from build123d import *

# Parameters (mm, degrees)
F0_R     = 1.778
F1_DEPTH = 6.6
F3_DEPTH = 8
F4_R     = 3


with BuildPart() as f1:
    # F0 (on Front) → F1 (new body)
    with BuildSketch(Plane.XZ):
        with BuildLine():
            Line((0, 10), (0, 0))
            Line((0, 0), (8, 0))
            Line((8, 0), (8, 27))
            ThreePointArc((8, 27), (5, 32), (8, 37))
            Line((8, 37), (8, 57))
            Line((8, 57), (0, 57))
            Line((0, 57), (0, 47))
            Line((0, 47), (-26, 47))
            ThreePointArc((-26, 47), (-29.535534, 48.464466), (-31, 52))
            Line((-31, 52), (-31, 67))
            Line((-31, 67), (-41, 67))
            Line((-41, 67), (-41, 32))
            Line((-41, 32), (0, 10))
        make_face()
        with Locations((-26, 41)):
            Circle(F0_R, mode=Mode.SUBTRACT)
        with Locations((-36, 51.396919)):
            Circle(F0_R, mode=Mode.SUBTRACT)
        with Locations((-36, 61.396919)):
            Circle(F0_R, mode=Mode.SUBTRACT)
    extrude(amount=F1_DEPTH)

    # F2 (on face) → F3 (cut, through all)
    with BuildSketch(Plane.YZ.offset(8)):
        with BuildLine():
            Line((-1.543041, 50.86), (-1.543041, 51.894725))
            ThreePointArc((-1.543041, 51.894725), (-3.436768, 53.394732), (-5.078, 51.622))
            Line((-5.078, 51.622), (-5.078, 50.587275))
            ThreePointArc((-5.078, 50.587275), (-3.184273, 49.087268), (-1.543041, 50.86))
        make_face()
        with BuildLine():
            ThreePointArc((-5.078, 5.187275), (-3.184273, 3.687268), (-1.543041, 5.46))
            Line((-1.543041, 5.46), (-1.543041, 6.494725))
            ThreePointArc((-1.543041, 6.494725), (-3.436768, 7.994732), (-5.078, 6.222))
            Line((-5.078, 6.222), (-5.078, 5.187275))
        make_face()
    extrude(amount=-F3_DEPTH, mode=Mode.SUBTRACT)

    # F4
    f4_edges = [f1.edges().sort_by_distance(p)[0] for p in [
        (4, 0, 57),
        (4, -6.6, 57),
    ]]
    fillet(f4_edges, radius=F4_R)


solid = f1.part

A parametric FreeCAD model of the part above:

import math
import FreeCAD as App
import Part
import Sketcher
from FreeCAD import Vector


def edges_at(feature, points):
    """Names of the edges that pass closest to the given points."""
    edges = feature.Shape.Edges
    near = lambda p: min(range(len(edges)), key=lambda i: edges[i].distToShape(Part.Vertex(*p))[0])
    return sorted({f"Edge{near(p) + 1}" for p in points})

doc = App.newDocument("Part")
params = doc.addObject("Spreadsheet::Sheet", "Params")
for row, (alias, value) in enumerate([
    ("sketch1_radius", "5 mm"),
    ("sketch1_width", "8 mm"),
    ("sketch1_width2", "26 mm"),
    ("sketch1_width3", "10 mm"),
    ("sketch1_height", "27 mm"),
    ("pad1_length", "6.6 mm"),
    ("pocket1_length", "8 mm"),
    ("fillet_radius", "3 mm"),
], start=1):
    params.set(f"A{row}", alias)
    params.set(f"B{row}", "=" + value)
    params.setAlias(f"B{row}", alias)

body = doc.addObject("PartDesign::Body", "Body")

sketch1 = body.newObject("Sketcher::SketchObject", "Sketch")
sketch1.AttachmentSupport = (doc.getObject("XZ_Plane"), [""])
sketch1.MapMode = "FlatFace"
sketch1.addGeometry([
    Part.LineSegment(Vector(0, 10, 0), Vector(0, 0, 0)),
    Part.LineSegment(Vector(0, 0, 0), Vector(8, 0, 0)),
    Part.LineSegment(Vector(8, 0, 0), Vector(8, 27, 0)),
    Part.ArcOfCircle(Part.Circle(Vector(10.7, 32, 0), Vector(0, 0, 1), 5.7), math.radians(118), math.radians(242)),
    Part.LineSegment(Vector(8, 37, 0), Vector(8, 57, 0)),
    Part.LineSegment(Vector(8, 57, 0), Vector(0, 57, 0)),
    Part.LineSegment(Vector(0, 57, 0), Vector(0, 47, 0)),
    Part.LineSegment(Vector(0, 47, 0), Vector(-26, 47, 0)),
    Part.ArcOfCircle(Part.Circle(Vector(-26, 52, 0), Vector(0, 0, 1), 5), math.radians(180), math.radians(270)),
    Part.LineSegment(Vector(-31, 52, 0), Vector(-31, 67, 0)),
    Part.LineSegment(Vector(-31, 67, 0), Vector(-41, 67, 0)),
    Part.LineSegment(Vector(-41, 67, 0), Vector(-41, 32, 0)),
    Part.LineSegment(Vector(-41, 32, 0), Vector(0, 10, 0)),
    Part.Circle(Vector(-26, 41, 0), Vector(0, 0, 1), 1.8),
    Part.Circle(Vector(-36, 51.4, 0), Vector(0, 0, 1), 1.8),
    Part.Circle(Vector(-36, 61.4, 0), Vector(0, 0, 1), 1.8),
], False)
sketch1.addConstraint([
    Sketcher.Constraint("Coincident", 0, 2, 1, 1),
    Sketcher.Constraint("Coincident", 1, 2, 2, 1),
    Sketcher.Constraint("Coincident", 2, 2, 3, 2),
    Sketcher.Constraint("Coincident", 3, 1, 4, 1),
    Sketcher.Constraint("Coincident", 4, 2, 5, 1),
    Sketcher.Constraint("Coincident", 5, 2, 6, 1),
    Sketcher.Constraint("Coincident", 6, 2, 7, 1),
    Sketcher.Constraint("Tangent", 7, 2, 8, 2),
    Sketcher.Constraint("Tangent", 8, 1, 9, 1),
    Sketcher.Constraint("Coincident", 9, 2, 10, 1),
    Sketcher.Constraint("Coincident", 10, 2, 11, 1),
    Sketcher.Constraint("Coincident", 11, 2, 12, 1),
    Sketcher.Constraint("Coincident", 12, 2, 0, 1),
    Sketcher.Constraint("Vertical", 0),
    Sketcher.Constraint("Horizontal", 1),
    Sketcher.Constraint("Vertical", 2),
    Sketcher.Constraint("Vertical", 4),
    Sketcher.Constraint("Horizontal", 5),
    Sketcher.Constraint("Vertical", 6),
    Sketcher.Constraint("Horizontal", 7),
    Sketcher.Constraint("Vertical", 9),
    Sketcher.Constraint("Horizontal", 10),
    Sketcher.Constraint("Vertical", 11),
    Sketcher.Constraint("Coincident", 0, 2, -1, 1),
    Sketcher.Constraint("Equal", 13, 14),
    Sketcher.Constraint("Equal", 14, 15),
    Sketcher.Constraint("PointOnObject", 5, 2, -2),
    Sketcher.Constraint("Horizontal", 3, 3, 11, 2),
    Sketcher.Constraint("Vertical", 8, 3, 13, 3),
    Sketcher.Constraint("Vertical", 14, 3, 15, 3),
    Sketcher.Constraint("Vertical", 2, 2, 3, 1),
    Sketcher.Constraint("Equal", 10, 0),
    Sketcher.Constraint("Equal", 0, 6),
    Sketcher.Constraint("Radius", 8, 5.0),
    Sketcher.Constraint("DistanceX", 1, 1, 1, 2, 8.0),
    Sketcher.Constraint("DistanceX", 7, 2, 7, 1, 26.0),
    Sketcher.Constraint("DistanceX", 10, 2, 10, 1, 10.0),
    Sketcher.Constraint("DistanceY", 2, 1, 2, 2, 27.0),
    Sketcher.Constraint("DistanceY", 4, 1, 4, 2, 20.0),
    Sketcher.Constraint("DistanceY", 9, 1, 9, 2, 15.0),
    Sketcher.Constraint("DistanceY", 11, 2, 11, 1, 35.0),
    Sketcher.Constraint("Diameter", 13, 3.556),
    Sketcher.Constraint("DistanceY", -1, 1, 13, 3, 41.0),
    Sketcher.Constraint("DistanceX", 14, 3, -1, 1, 36.0),
    Sketcher.Constraint("DistanceY", 14, 3, 15, 3, 10.0),
    Sketcher.Constraint("Radius", 3, 5.666667),
    Sketcher.Constraint("DistanceY", -1, 1, 14, 3, 51.396919),
])
sketch1.setExpression("Constraints[33]", "Params.sketch1_radius")
sketch1.setExpression("Constraints[34]", "Params.sketch1_width")
sketch1.setExpression("Constraints[35]", "Params.sketch1_width2")
sketch1.setExpression("Constraints[36]", "Params.sketch1_width3")
sketch1.setExpression("Constraints[37]", "Params.sketch1_height")
pad1 = body.newObject("PartDesign::Pad", "Pad")
pad1.Profile = sketch1
pad1.setExpression("Length", "Params.pad1_length")

sketch2 = body.newObject("Sketcher::SketchObject", "Sketch001")
sketch2.AttachmentSupport = (doc.getObject("YZ_Plane"), [""])
sketch2.MapMode = "FlatFace"
sketch2.AttachmentOffset = App.Placement(Vector(0, 0, 8), App.Rotation())
sketch2.addGeometry([
    Part.LineSegment(Vector(-1.5, 50.9, 0), Vector(-1.5, 51.9, 0)),
    Part.ArcOfCircle(Part.Circle(Vector(-3.3, 51.6, 0), Vector(0, 0, 1), 1.8), math.radians(9), math.radians(180)),
    Part.LineSegment(Vector(-5.1, 51.6, 0), Vector(-5.1, 50.6, 0)),
    Part.ArcOfCircle(Part.Circle(Vector(-3.3, 50.9, 0), Vector(0, 0, 1), 1.8), math.radians(-171), math.radians(0)),
    Part.ArcOfCircle(Part.Circle(Vector(-3.3, 5.5, 0), Vector(0, 0, 1), 1.8), math.radians(-171), math.radians(0)),
    Part.LineSegment(Vector(-1.5, 5.5, 0), Vector(-1.5, 6.5, 0)),
    Part.ArcOfCircle(Part.Circle(Vector(-3.3, 6.2, 0), Vector(0, 0, 1), 1.8), math.radians(9), math.radians(180)),
    Part.LineSegment(Vector(-5.1, 6.2, 0), Vector(-5.1, 5.2, 0)),
], False)
sketch2.addConstraint([
    Sketcher.Constraint("Coincident", 0, 2, 1, 1),
    Sketcher.Constraint("Tangent", 1, 2, 2, 1),
    Sketcher.Constraint("Coincident", 2, 2, 3, 1),
    Sketcher.Constraint("Tangent", 3, 2, 0, 1),
    Sketcher.Constraint("Tangent", 4, 2, 5, 1),
    Sketcher.Constraint("Coincident", 5, 2, 6, 1),
    Sketcher.Constraint("Tangent", 6, 2, 7, 1),
    Sketcher.Constraint("Coincident", 7, 2, 4, 1),
    Sketcher.Constraint("Vertical", 0),
    Sketcher.Constraint("Vertical", 2),
    Sketcher.Constraint("Vertical", 5),
    Sketcher.Constraint("Vertical", 7),
    Sketcher.Constraint("Equal", 1, 3),
    Sketcher.Constraint("Equal", 3, 4),
    Sketcher.Constraint("Equal", 4, 6),
    Sketcher.Constraint("Vertical", 3, 3, 4, 3),
    Sketcher.Constraint("Vertical", 1, 3, 6, 3),
    Sketcher.Constraint("Equal", 2, 5),
    Sketcher.Constraint("Radius", 1, 1.778),
    Sketcher.Constraint("DistanceX", 1, 3, -1, 1, 3.3),
    Sketcher.Constraint("DistanceY", 4, 3, 3, 3, 45.4),
    Sketcher.Constraint("DistanceY", -1, 1, 3, 3, 50.86),
    Sketcher.Constraint("DistanceY", -1, 1, 1, 3, 51.622),
    Sketcher.Constraint("DistanceY", 0, 1, 0, 2, 1.034725),
])
pocket1 = body.newObject("PartDesign::Pocket", "Pocket")
pocket1.Profile = sketch2
pocket1.setExpression("Length", "Params.pocket1_length")
doc.recompute()

fillet = body.newObject("PartDesign::Fillet", "Fillet")
fillet.Base = (pocket1, edges_at(pocket1, [(4, 0, 57), (4, -6.6, 57)]))
fillet.setExpression("Radius", "Params.fillet_radius")

doc.recompute()
